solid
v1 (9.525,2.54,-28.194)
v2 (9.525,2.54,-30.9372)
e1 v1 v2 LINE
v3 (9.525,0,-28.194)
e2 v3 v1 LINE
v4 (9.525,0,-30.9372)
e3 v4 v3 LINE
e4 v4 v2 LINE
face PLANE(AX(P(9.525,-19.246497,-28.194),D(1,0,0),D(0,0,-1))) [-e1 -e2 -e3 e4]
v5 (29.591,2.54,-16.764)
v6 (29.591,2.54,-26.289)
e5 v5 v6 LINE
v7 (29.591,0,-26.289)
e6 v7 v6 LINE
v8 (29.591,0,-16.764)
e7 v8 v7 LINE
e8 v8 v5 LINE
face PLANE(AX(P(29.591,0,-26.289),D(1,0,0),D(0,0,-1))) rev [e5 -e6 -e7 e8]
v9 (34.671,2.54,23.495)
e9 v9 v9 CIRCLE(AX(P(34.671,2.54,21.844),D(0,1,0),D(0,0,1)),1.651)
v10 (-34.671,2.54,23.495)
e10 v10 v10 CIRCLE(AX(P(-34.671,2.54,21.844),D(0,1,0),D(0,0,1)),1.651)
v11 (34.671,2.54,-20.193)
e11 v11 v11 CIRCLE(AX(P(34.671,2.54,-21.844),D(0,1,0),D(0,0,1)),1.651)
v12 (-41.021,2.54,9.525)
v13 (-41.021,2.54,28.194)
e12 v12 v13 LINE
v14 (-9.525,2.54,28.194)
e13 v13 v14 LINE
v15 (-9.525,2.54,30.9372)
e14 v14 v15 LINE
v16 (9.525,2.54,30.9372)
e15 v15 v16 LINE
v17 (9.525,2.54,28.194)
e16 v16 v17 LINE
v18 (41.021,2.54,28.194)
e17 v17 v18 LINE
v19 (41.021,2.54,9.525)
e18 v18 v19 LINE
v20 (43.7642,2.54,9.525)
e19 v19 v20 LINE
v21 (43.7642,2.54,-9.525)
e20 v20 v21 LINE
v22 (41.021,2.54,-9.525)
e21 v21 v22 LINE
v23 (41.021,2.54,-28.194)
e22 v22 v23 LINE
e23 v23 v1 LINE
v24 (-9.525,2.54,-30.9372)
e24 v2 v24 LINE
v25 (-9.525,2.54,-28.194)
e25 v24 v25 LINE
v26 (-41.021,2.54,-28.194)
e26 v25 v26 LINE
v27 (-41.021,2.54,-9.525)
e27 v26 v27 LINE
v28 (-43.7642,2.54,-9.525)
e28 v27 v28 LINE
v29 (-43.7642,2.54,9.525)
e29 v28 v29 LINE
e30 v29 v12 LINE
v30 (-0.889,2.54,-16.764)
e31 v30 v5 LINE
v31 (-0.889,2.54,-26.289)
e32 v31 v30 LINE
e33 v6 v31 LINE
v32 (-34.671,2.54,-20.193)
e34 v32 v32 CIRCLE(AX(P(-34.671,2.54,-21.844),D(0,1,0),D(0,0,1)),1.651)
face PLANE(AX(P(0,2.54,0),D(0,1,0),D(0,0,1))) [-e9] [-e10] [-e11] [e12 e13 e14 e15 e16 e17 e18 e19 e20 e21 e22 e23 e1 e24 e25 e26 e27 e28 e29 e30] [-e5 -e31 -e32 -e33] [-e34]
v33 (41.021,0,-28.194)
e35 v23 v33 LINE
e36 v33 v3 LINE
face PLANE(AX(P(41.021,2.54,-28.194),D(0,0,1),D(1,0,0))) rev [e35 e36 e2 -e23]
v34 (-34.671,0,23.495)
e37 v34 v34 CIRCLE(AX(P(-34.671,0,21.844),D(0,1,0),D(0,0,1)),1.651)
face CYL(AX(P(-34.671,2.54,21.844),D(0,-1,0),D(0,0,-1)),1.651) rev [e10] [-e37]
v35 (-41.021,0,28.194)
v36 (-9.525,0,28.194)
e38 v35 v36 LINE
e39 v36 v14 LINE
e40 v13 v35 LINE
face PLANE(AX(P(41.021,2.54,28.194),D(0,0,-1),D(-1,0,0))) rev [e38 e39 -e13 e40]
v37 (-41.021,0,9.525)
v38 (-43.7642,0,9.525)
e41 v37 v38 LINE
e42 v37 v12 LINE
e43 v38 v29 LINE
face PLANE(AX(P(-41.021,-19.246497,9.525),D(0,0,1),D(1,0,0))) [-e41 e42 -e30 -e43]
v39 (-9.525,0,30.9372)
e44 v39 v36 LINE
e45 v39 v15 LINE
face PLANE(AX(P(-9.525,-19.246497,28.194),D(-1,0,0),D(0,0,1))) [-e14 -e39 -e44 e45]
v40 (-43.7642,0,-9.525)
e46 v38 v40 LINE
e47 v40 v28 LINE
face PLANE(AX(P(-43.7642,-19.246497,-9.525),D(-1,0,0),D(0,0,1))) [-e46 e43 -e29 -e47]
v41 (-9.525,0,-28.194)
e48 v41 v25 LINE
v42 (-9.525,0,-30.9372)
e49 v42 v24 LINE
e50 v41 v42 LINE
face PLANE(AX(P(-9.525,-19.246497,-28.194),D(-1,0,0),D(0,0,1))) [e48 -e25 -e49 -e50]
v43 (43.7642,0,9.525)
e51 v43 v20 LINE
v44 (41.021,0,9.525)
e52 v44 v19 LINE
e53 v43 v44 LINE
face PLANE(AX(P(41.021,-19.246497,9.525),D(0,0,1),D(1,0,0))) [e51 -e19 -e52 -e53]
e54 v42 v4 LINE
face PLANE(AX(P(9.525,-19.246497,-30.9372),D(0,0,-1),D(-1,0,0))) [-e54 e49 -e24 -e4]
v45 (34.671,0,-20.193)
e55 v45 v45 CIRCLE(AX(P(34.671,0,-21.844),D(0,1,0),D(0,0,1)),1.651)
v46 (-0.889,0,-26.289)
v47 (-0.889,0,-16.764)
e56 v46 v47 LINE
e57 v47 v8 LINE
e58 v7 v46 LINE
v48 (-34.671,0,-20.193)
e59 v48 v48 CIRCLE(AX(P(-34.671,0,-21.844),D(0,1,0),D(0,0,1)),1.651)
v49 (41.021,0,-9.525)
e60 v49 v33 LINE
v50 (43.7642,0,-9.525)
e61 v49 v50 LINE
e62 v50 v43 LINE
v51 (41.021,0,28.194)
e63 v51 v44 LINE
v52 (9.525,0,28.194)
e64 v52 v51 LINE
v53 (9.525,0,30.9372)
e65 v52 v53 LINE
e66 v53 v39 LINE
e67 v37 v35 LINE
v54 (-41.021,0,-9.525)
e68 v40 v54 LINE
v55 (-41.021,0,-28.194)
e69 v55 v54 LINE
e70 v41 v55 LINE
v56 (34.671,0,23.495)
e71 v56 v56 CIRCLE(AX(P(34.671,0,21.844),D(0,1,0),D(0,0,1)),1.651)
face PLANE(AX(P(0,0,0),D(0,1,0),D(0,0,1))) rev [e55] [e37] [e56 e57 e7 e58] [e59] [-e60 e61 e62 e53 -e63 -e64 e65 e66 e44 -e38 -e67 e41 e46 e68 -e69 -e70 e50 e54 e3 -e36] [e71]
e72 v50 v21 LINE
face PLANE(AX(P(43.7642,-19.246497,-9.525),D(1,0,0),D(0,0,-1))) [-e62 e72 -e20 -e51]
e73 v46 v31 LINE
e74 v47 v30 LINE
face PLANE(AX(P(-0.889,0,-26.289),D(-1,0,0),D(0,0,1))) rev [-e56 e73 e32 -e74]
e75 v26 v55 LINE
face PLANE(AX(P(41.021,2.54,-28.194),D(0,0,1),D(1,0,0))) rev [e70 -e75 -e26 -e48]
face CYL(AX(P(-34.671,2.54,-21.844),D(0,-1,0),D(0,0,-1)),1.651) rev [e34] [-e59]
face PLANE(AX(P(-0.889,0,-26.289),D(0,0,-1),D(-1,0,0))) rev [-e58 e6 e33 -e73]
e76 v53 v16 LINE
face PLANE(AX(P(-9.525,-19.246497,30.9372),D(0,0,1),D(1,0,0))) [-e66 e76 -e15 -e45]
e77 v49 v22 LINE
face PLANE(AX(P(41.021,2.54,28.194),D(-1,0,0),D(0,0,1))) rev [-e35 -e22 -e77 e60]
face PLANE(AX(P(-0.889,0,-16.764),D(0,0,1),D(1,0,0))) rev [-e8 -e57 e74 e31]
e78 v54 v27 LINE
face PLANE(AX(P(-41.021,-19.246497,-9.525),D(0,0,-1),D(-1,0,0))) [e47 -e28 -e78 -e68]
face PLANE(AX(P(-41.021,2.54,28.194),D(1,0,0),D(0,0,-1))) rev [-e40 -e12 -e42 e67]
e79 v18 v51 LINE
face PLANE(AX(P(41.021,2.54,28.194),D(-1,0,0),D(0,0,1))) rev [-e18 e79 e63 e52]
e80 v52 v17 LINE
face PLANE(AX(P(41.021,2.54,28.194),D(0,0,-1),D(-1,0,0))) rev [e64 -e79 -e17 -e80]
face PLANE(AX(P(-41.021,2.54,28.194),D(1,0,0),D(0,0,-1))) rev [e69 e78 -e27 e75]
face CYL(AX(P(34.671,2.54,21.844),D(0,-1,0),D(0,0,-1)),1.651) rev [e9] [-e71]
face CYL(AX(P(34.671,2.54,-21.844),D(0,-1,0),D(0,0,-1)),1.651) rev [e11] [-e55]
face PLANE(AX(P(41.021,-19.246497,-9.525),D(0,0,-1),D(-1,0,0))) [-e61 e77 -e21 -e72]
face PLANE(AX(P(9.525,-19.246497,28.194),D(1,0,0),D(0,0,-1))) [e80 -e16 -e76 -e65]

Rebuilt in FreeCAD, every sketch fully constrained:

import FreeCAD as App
import Part
import Sketcher
Q = App.Units.Quantity


def add_polygon(sketch, points):
    """Adds a closed chain of lines whose ends are joined by coincident constraints."""
    first, n = sketch.GeometryCount, len(points)
    for a, b in zip(points, points[1:] + points[:1]):
        sketch.addGeometry(Part.LineSegment(App.Vector(*a, 0), App.Vector(*b, 0)), False)
    for i in range(n):
        sketch.addConstraint(Sketcher.Constraint("Coincident", first + i, 2, first + (i + 1) % n, 1))

doc = App.newDocument("Part")
params = doc.addObject("Spreadsheet::Sheet", "Params")
for row, (alias, value) in enumerate([
    ("sketch1_diameter", "0.13 in"),
    ("sketch1_width", "3.23 in"),
    ("sketch1_height", "2.22 in"),
    ("pad1_length", "0.1 in"),
    ("sketch2_width", "0.75 in"),
    ("sketch2_width2", "0.108 in"),
    ("pad2_length", "0.1 in"),
    ("sketch3_width", "1.2 in"),
    ("sketch3_height", "0.375 in"),
], start=1):
    params.set(f"A{row}", alias)
    params.set(f"B{row}", "=" + value)
    params.setAlias(f"B{row}", alias)

body = doc.addObject("PartDesign::Body", "Body")

sketch1 = doc.addObject("Sketcher::SketchObject", "Sketch")
body.addObject(sketch1)
sketch1.AttachmentSupport = (doc.XZ_Plane, [""])
sketch1.MapMode = "FlatFace"
add_polygon(sketch1, [(-41, -28.2), (-41, 28.2), (41, 28.2), (41, -28.2)])
sketch1.addGeometry(Part.Circle(App.Vector(-34.7, 21.8, 0), App.Vector(0, 0, 1), 1.7), False)
sketch1.addGeometry(Part.Circle(App.Vector(34.7, 21.8, 0), App.Vector(0, 0, 1), 1.7), False)
sketch1.addGeometry(Part.Circle(App.Vector(-34.7, -21.8, 0), App.Vector(0, 0, 1), 1.7), False)
sketch1.addGeometry(Part.Circle(App.Vector(34.7, -21.8, 0), App.Vector(0, 0, 1), 1.7), False)
sketch1.addConstraint([
    Sketcher.Constraint("Vertical", 0),
    Sketcher.Constraint("Horizontal", 1),
    Sketcher.Constraint("Vertical", 2),
    Sketcher.Constraint("Horizontal", 3),
    Sketcher.Constraint("Equal", 4, 5),
    Sketcher.Constraint("Equal", 5, 6),
    Sketcher.Constraint("Equal", 6, 7),
    Sketcher.Constraint("Symmetric", 5, 3, 6, 3, -1, 1),
    Sketcher.Constraint("Symmetric", 4, 3, 7, 3, -1, 1),
    Sketcher.Constraint("Symmetric", 0, 2, 2, 2, -1, 1),
    Sketcher.Constraint("Symmetric", 4, 3, 5, 3, -2),
    Sketcher.Constraint("Diameter", 4, Q("0.13 in")),
    Sketcher.Constraint("DistanceX", 1, 1, 1, 2, Q("3.23 in")),
    Sketcher.Constraint("DistanceY", 0, 1, 0, 2, Q("2.22 in")),
    Sketcher.Constraint("DistanceY", -1, 1, 4, 3, Q("0.86 in")),
    Sketcher.Constraint("DistanceX", 4, 3, 5, 3, Q("2.73 in")),
])
sketch1.setExpression("Constraints[15]", "Params.sketch1_diameter")
sketch1.setExpression("Constraints[16]", "Params.sketch1_width")
sketch1.setExpression("Constraints[17]", "Params.sketch1_height")
pad1 = doc.addObject("PartDesign::Pad", "Pad")
body.addObject(pad1)
pad1.Profile = sketch1
pad1.setExpression("Length", "Params.pad1_length")
pad1.Reversed = True

sketch2 = doc.addObject("Sketcher::SketchObject", "Sketch001")
body.addObject(sketch2)
sketch2.AttachmentSupport = (doc.XZ_Plane, [""])
sketch2.MapMode = "FlatFace"
sketch2.AttachmentOffset = App.Placement(App.Vector(0, 0, -0.1 * 25.4), App.Rotation())
add_polygon(sketch2, [(-9.5, -30.9), (-9.5, -28.2), (9.5, -28.2), (9.5, -30.9)])
add_polygon(sketch2, [(-9.5, 28.2), (-9.5, 30.9), (9.5, 30.9), (9.5, 28.2)])
add_polygon(sketch2, [(41, -9.5), (41, 9.5), (43.8, 9.5), (43.8, -9.5)])
add_polygon(sketch2, [(-43.8, -9.5), (-43.8, 9.5), (-41, 9.5), (-41, -9.5)])
sketch2.addConstraint([
    Sketcher.Constraint("Vertical", 0),
    Sketcher.Constraint("Horizontal", 1),
    Sketcher.Constraint("Vertical", 2),
    Sketcher.Constraint("Horizontal", 3),
    Sketcher.Constraint("Vertical", 4),
    Sketcher.Constraint("Horizontal", 5),
    Sketcher.Constraint("Vertical", 6),
    Sketcher.Constraint("Horizontal", 7),
    Sketcher.Constraint("Vertical", 8),
    Sketcher.Constraint("Horizontal", 9),
    Sketcher.Constraint("Vertical", 10),
    Sketcher.Constraint("Horizontal", 11),
    Sketcher.Constraint("Vertical", 12),
    Sketcher.Constraint("Horizontal", 13),
    Sketcher.Constraint("Vertical", 14),
    Sketcher.Constraint("Horizontal", 15),
    Sketcher.Constraint("Symmetric", 2, 2, 4, 2, -1, 1),
    Sketcher.Constraint("Symmetric", 0, 2, 6, 2, -1, 1),
    Sketcher.Constraint("Symmetric", 10, 2, 12, 2, -1, 1),
    Sketcher.Constraint("Symmetric", 8, 2, 14, 2, -1, 1),
    Sketcher.Constraint("Horizontal", 9, 2, 12, 2),
    Sketcher.Constraint("Vertical", 3, 2, 4, 2),
    Sketcher.Constraint("Equal", 15, 0),
    Sketcher.Constraint("Equal", 7, 8),
    Sketcher.Constraint("DistanceX", 1, 1, 1, 2, Q("0.75 in")),
    Sketcher.Constraint("DistanceX", 9, 1, 9, 2, Q("0.108 in")),
    Sketcher.Constraint("DistanceY", 0, 2, -1, 1, Q("1.11 in")),
    Sketcher.Constraint("DistanceX", 6, 2, 8, 2, Q("1.24 in")),
])
sketch2.setExpression("Constraints[40]", "Params.sketch2_width")
sketch2.setExpression("Constraints[41]", "Params.sketch2_width2")
pad2 = doc.addObject("PartDesign::Pad", "Pad001")
body.addObject(pad2)
pad2.Profile = sketch2
pad2.setExpression("Length", "Params.pad2_length")

sketch3 = doc.addObject("Sketcher::SketchObject", "Sketch002")
body.addObject(sketch3)
sketch3.AttachmentSupport = (doc.XZ_Plane, [""])
sketch3.MapMode = "FlatFace"
sketch3.AttachmentOffset = App.Placement(App.Vector(0, 0, -0.1 * 25.4), App.Rotation())
add_polygon(sketch3, [(-1, -26), (-1, -17), (30, -17), (30, -26)])
sketch3.addConstraint([
    Sketcher.Constraint("Vertical", 0),
    Sketcher.Constraint("Horizontal", 1),
    Sketcher.Constraint("Vertical", 2),
    Sketcher.Constraint("Horizontal", 3),
    Sketcher.Constraint("DistanceX", 1, 1, 1, 2, Q("1.2 in")),
    Sketcher.Constraint("DistanceY", 0, 1, 0, 2, Q("0.375 in")),
    Sketcher.Constraint("DistanceY", 0, 2, -1, 1, Q("0.66 in")),
    Sketcher.Constraint("DistanceX", 0, 2, -1, 1, Q("0.035 in")),
])
sketch3.setExpression("Constraints[8]", "Params.sketch3_width")
sketch3.setExpression("Constraints[9]", "Params.sketch3_height")
pocket1 = doc.addObject("PartDesign::Pocket", "Pocket")
body.addObject(pocket1)
pocket1.Profile = sketch3
pocket1.Type = "ThroughAll"
pocket1.Reversed = True

doc.recompute()
